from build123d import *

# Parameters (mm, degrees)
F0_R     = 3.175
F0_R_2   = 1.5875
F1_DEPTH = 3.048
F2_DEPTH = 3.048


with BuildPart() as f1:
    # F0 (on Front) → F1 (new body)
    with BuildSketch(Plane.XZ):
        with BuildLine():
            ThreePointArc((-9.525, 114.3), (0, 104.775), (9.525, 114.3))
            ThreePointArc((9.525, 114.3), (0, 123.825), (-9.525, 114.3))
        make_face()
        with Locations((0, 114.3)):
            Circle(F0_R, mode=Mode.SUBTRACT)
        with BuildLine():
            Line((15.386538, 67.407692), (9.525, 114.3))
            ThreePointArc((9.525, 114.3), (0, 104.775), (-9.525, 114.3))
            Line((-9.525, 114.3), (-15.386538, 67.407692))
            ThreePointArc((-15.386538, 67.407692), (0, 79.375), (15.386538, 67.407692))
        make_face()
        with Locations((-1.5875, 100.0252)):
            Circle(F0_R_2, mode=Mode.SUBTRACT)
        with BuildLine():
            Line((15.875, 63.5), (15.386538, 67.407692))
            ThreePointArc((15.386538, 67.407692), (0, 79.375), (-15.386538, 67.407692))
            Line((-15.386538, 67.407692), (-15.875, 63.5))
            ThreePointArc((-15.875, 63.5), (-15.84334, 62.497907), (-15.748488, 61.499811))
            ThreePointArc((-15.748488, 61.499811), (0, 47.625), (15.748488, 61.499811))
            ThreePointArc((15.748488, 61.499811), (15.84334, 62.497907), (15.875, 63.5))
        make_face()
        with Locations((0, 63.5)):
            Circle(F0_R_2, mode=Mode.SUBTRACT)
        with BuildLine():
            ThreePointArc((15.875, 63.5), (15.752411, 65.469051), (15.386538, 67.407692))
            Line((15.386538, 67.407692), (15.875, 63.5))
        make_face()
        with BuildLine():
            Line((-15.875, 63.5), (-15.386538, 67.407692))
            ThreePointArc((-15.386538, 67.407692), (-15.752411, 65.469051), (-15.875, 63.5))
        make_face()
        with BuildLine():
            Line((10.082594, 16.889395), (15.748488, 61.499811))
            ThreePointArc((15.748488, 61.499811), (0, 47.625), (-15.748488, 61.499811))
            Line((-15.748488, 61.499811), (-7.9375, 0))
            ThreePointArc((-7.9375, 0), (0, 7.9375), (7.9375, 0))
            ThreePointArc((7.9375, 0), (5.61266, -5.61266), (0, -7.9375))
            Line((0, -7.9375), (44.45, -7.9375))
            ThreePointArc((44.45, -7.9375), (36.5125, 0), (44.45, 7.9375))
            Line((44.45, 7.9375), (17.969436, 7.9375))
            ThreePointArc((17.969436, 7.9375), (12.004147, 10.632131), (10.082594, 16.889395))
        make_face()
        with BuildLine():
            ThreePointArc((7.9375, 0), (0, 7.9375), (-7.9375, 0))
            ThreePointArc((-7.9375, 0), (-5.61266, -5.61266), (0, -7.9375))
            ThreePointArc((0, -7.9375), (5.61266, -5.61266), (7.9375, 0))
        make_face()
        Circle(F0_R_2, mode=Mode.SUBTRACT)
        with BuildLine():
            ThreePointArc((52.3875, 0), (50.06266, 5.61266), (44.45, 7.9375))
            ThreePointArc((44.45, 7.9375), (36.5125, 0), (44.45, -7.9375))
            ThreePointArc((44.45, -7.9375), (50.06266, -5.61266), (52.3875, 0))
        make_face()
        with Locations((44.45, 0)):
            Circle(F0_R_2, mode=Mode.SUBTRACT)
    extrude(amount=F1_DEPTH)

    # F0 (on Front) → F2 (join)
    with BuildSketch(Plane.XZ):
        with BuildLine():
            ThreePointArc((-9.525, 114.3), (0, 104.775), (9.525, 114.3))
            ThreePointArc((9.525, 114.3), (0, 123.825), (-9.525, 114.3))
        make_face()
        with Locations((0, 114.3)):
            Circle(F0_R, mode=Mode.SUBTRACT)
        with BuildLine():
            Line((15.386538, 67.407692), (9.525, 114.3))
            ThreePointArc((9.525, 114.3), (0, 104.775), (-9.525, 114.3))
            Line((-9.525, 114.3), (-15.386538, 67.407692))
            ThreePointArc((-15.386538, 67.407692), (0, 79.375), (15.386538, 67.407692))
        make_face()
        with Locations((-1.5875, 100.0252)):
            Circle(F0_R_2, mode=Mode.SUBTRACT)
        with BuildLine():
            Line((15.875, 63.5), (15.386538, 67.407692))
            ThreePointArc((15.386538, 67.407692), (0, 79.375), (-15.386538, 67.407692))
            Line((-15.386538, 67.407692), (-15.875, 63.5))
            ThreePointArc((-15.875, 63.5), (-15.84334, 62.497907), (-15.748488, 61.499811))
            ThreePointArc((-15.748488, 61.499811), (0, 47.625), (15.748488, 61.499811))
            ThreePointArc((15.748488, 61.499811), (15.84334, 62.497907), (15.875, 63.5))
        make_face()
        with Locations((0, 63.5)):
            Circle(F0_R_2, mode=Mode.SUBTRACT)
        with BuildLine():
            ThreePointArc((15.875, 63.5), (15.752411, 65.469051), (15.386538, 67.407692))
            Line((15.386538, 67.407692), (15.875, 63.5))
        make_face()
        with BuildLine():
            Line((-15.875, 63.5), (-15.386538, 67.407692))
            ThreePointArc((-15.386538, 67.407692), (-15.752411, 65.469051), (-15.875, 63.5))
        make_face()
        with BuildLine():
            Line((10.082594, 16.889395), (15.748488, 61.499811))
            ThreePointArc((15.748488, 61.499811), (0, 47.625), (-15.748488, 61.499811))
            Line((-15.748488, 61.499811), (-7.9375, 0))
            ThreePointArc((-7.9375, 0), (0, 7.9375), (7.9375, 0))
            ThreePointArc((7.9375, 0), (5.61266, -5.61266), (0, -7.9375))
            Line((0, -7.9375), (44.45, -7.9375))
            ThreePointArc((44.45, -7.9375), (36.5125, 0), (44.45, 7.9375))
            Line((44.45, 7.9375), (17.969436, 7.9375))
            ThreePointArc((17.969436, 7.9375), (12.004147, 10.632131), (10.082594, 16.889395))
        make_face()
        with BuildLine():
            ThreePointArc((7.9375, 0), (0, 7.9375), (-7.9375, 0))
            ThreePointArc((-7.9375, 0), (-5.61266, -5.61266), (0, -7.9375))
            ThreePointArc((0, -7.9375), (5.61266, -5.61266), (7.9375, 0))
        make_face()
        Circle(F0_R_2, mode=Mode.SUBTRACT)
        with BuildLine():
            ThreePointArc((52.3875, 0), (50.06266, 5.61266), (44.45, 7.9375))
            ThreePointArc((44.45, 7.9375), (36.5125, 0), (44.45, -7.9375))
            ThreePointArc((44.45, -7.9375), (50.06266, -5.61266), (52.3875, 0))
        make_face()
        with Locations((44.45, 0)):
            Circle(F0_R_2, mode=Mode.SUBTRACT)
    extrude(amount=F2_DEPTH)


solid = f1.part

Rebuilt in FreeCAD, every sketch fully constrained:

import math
import FreeCAD as App
import Part
import Sketcher
Q = App.Units.Quantity

doc = App.newDocument("Part")
params = doc.addObject("Spreadsheet::Sheet", "Params")
for row, (alias, value) in enumerate([
    ("sketch1_diameter", "0.25 in"),
    ("sketch1_diameter2", "0.125 in"),
    ("sketch1_diameter3", "0.125 in"),
    ("sketch1_diameter4", "0.125 in"),
    ("sketch1_diameter5", "0.125 in"),
    ("pad1_length", "0.12 in"),
    ("sketch2_diameter", "0.25 in"),
    ("sketch2_diameter2", "0.125 in"),
    ("sketch2_diameter3", "0.125 in"),
    ("sketch2_diameter4", "0.125 in"),
    ("sketch2_diameter5", "0.125 in"),
    ("pad2_length", "0.12 in"),
], start=1):
    params.set(f"A{row}", alias)
    params.set(f"B{row}", "=" + value)
    params.setAlias(f"B{row}", alias)

body = doc.addObject("PartDesign::Body", "Body")

# Sketch on XZ plane
sketch1 = body.newObject("Sketcher::SketchObject", "Sketch")
sketch1.AttachmentSupport = (doc.getObject("XZ_Plane"), [""])
sketch1.MapMode = "FlatFace"
sketch1.addGeometry([
    Part.ArcOfCircle(Part.Circle(App.Vector(0, 114.3, 0), App.Vector(0, 0, 1), 9.525), math.radians(0), math.radians(180)),  # 0
    Part.LineSegment(App.Vector(-9.525, 114.3, 0), App.Vector(-15.386538, 67.407692, 0)),  # 1
    Part.ArcOfCircle(Part.Circle(App.Vector(0.00001, 63.499997, 0), App.Vector(0, 0, 1), 15.87501), math.radians(165.749965), math.radians(179.999988)),  # 2
    Part.ArcOfCircle(Part.Circle(App.Vector(0.000235, 63.500014, 0), App.Vector(0, 0, 1), 15.875235), math.radians(-179.999951), math.radians(-172.761772)),  # 3
    Part.LineSegment(App.Vector(-15.748488, 61.499811, 0), App.Vector(-7.9375, 0, 0)),  # 4
    Part.ArcOfCircle(Part.Circle(App.Vector(0, 0, 0), App.Vector(0, 0, 1), 7.9375), math.radians(-179.999998), math.radians(-90.000002)),  # 5
    Part.LineSegment(App.Vector(0, -7.9375, 0), App.Vector(44.45, -7.9375, 0)),  # 6
    Part.ArcOfCircle(Part.Circle(App.Vector(44.45, 0, 0), App.Vector(0, 0, 1), 7.9375), math.radians(-89.999998), math.radians(-0.000002)),  # 7
    Part.ArcOfCircle(Part.Circle(App.Vector(44.45, 0, 0), App.Vector(0, 0, 1), 7.9375), math.radians(0.000002), math.radians(89.999998)),  # 8
    Part.LineSegment(App.Vector(44.45, 7.9375, 0), App.Vector(17.969436, 7.9375, 0)),  # 9
    Part.ArcOfCircle(Part.Circle(App.Vector(17.969436, 15.887699, 0), App.Vector(0, 0, 1), 7.950199), math.radians(172.761705), math.radians(270.000001)),  # 10
    Part.LineSegment(App.Vector(10.082594, 16.889395, 0), App.Vector(15.748488, 61.499811, 0)),  # 11
    Part.ArcOfCircle(Part.Circle(App.Vector(-0.000235, 63.500014, 0), App.Vector(0, 0, 1), 15.875235), math.radians(-7.238228), math.radians(-0.000049)),  # 12
    Part.ArcOfCircle(Part.Circle(App.Vector(-0.00001, 63.499997, 0), App.Vector(0, 0, 1), 15.87501), math.radians(0.000012), math.radians(14.250035)),  # 13
    Part.LineSegment(App.Vector(15.386538, 67.407692, 0), App.Vector(9.525, 114.3, 0)),  # 14
    Part.Circle(App.Vector(0, 0, 0), App.Vector(0, 0, 1), 1.5875),  # 15
    Part.Circle(App.Vector(44.45, 0, 0), App.Vector(0, 0, 1), 1.5875),  # 16
    Part.Circle(App.Vector(0, 63.5, 0), App.Vector(0, 0, 1), 1.5875),  # 17
    Part.Circle(App.Vector(-1.5875, 100.0252, 0), App.Vector(0, 0, 1), 1.5875),  # 18
    Part.Circle(App.Vector(0, 114.3, 0), App.Vector(0, 0, 1), 3.175),  # 19
], False)
sketch1.addConstraint([
    Sketcher.Constraint("Coincident", 0, 2, 1, 1),
    Sketcher.Constraint("Coincident", 1, 2, 2, 1),
    Sketcher.Constraint("Coincident", 2, 2, 3, 1),
    Sketcher.Constraint("Coincident", 3, 2, 4, 1),
    Sketcher.Constraint("Coincident", 4, 2, 5, 1),
    Sketcher.Constraint("Coincident", 5, 2, 6, 1),
    Sketcher.Constraint("Coincident", 6, 2, 7, 1),
    Sketcher.Constraint("Coincident", 7, 2, 8, 1),
    Sketcher.Constraint("Coincident", 8, 2, 9, 1),
    Sketcher.Constraint("Coincident", 9, 2, 10, 2),
    Sketcher.Constraint("Coincident", 10, 1, 11, 1),
    Sketcher.Constraint("Coincident", 11, 2, 12, 1),
    Sketcher.Constraint("Coincident", 12, 2, 13, 1),
    Sketcher.Constraint("Coincident", 13, 2, 14, 1),
    Sketcher.Constraint("Coincident", 14, 2, 0, 1),
    Sketcher.Constraint("Horizontal", 6),
    Sketcher.Constraint("Horizontal", 9),
    Sketcher.Constraint("Coincident", 5, 3, -1, 1),
    Sketcher.Constraint("Coincident", 15, 3, -1, 1),
    Sketcher.Constraint("Coincident", 8, 3, 7, 3),
    Sketcher.Constraint("Coincident", 16, 3, 7, 3),
    Sketcher.Constraint("Coincident", 19, 3, 0, 3),
    Sketcher.Constraint("PointOnObject", 0, 3, -2),
    Sketcher.Constraint("PointOnObject", 7, 3, -1),
    Sketcher.Constraint("PointOnObject", 17, 3, -2),
    Sketcher.Constraint("PointOnObject", 4, 2, -1),
    Sketcher.Constraint("PointOnObject", 5, 2, -2),
    Sketcher.Constraint("PointOnObject", 7, 2, -1),
    Sketcher.Constraint("Diameter", 19, Q("0.25 in")),
    Sketcher.Constraint("Diameter", 15, Q("0.125 in")),
    Sketcher.Constraint("Diameter", 16, Q("0.125 in")),
    Sketcher.Constraint("Diameter", 17, Q("0.125 in")),
    Sketcher.Constraint("Diameter", 18, Q("0.125 in")),
    Sketcher.Constraint("Radius", 0, Q("0.375 in")),
    Sketcher.Constraint("Radius", 5, Q("0.3125 in")),
    Sketcher.Constraint("Radius", 10, Q("0.313 in")),
    Sketcher.Constraint("DistanceY", 2, 3, 0, 3, Q("2.0000001 in")),
    Sketcher.Constraint("DistanceY", 13, 3, 0, 3, Q("2.0000001 in")),
    Sketcher.Constraint("DistanceY", 17, 3, 0, 3, Q("2 in")),
    Sketcher.Constraint("DistanceY", 17, 3, 0, 2, Q("2 in")),
    Sketcher.Constraint("DistanceX", 6, 1, 6, 2, Q("1.75 in")),
    Sketcher.Constraint("DistanceY", -1, 1, 0, 3, Q("4.5 in")),
    Sketcher.Constraint("DistanceY", -1, 1, 2, 2, Q("2.5 in")),
    Sketcher.Constraint("DistanceY", -1, 1, 12, 2, Q("2.5 in")),
    Sketcher.Constraint("DistanceY", -1, 1, 14, 2, Q("4.5 in")),
    Sketcher.Constraint("DistanceX", -1, 1, 7, 3, Q("1.75 in")),
    Sketcher.Constraint("DistanceX", -1, 1, 8, 2, Q("1.75 in")),
    Sketcher.Constraint("DistanceX", 18, 3, -1, 1, Q("0.0625 in")),
    Sketcher.Constraint("DistanceY", -1, 1, 18, 3, Q("3.938 in")),
    Sketcher.Constraint("DistanceX", 2, 2, -1, 1, Q("0.625 in")),
    Sketcher.Constraint("DistanceX", -1, 1, 12, 2, Q("0.625 in")),
    Sketcher.Constraint("Radius", 2, Q("15.87501 mm")),
    Sketcher.Constraint("Radius", 13, Q("15.87501 mm")),
    Sketcher.Constraint("Radius", 3, Q("15.875235 mm")),
    Sketcher.Constraint("Radius", 12, Q("15.875235 mm")),
    Sketcher.Constraint("DistanceX", 3, 3, 10, 3, Q("17.9692 mm")),
    Sketcher.Constraint("DistanceX", 13, 3, 11, 2, Q("15.748498 mm")),
    Sketcher.Constraint("DistanceX", 9, 2, 9, 1, Q("26.480564 mm")),
    Sketcher.Constraint("DistanceY", -1, 1, 1, 2, Q("67.407692 mm")),
    Sketcher.Constraint("DistanceY", -1, 1, 3, 2, Q("61.499811 mm")),
    Sketcher.Constraint("DistanceY", -1, 1, 11, 2, Q("61.499811 mm")),
    Sketcher.Constraint("DistanceY", -1, 1, 13, 2, Q("67.407692 mm")),
    Sketcher.Constraint("DistanceY", 3, 3, 1, 2, Q("3.907678 mm")),
    Sketcher.Constraint("DistanceX", 10, 1, 10, 3, Q("7.886842 mm")),
])
sketch1.setExpression("Constraints[28]", "Params.sketch1_diameter")
sketch1.setExpression("Constraints[29]", "Params.sketch1_diameter2")
sketch1.setExpression("Constraints[30]", "Params.sketch1_diameter3")
sketch1.setExpression("Constraints[31]", "Params.sketch1_diameter4")
sketch1.setExpression("Constraints[32]", "Params.sketch1_diameter5")
pad1 = body.newObject("PartDesign::Pad", "Pad")
pad1.Profile = sketch1
pad1.setExpression("Length", "Params.pad1_length")

# Sketch on XZ plane
sketch2 = body.newObject("Sketcher::SketchObject", "Sketch001")
sketch2.AttachmentSupport = (doc.getObject("XZ_Plane"), [""])
sketch2.MapMode = "FlatFace"
sketch2.addGeometry([
    Part.ArcOfCircle(Part.Circle(App.Vector(0, 114.3, 0), App.Vector(0, 0, 1), 9.525), math.radians(0), math.radians(180)),  # 0
    Part.LineSegment(App.Vector(-9.525, 114.3, 0), App.Vector(-15.386538, 67.407692, 0)),  # 1
    Part.ArcOfCircle(Part.Circle(App.Vector(0.00001, 63.499997, 0), App.Vector(0, 0, 1), 15.87501), math.radians(165.749965), math.radians(179.999988)),  # 2
    Part.ArcOfCircle(Part.Circle(App.Vector(0.000235, 63.500014, 0), App.Vector(0, 0, 1), 15.875235), math.radians(-179.999951), math.radians(-172.761772)),  # 3
    Part.LineSegment(App.Vector(-15.748488, 61.499811, 0), App.Vector(-7.9375, 0, 0)),  # 4
    Part.ArcOfCircle(Part.Circle(App.Vector(0, 0, 0), App.Vector(0, 0, 1), 7.9375), math.radians(-179.999998), math.radians(-90.000002)),  # 5
    Part.LineSegment(App.Vector(0, -7.9375, 0), App.Vector(44.45, -7.9375, 0)),  # 6
    Part.ArcOfCircle(Part.Circle(App.Vector(44.45, 0, 0), App.Vector(0, 0, 1), 7.9375), math.radians(-89.999998), math.radians(-0.000002)),  # 7
    Part.ArcOfCircle(Part.Circle(App.Vector(44.45, 0, 0), App.Vector(0, 0, 1), 7.9375), math.radians(0.000002), math.radians(89.999998)),  # 8
    Part.LineSegment(App.Vector(44.45, 7.9375, 0), App.Vector(17.969436, 7.9375, 0)),  # 9
    Part.ArcOfCircle(Part.Circle(App.Vector(17.969436, 15.887699, 0), App.Vector(0, 0, 1), 7.950199), math.radians(172.761705), math.radians(270.000001)),  # 10
    Part.LineSegment(App.Vector(10.082594, 16.889395, 0), App.Vector(15.748488, 61.499811, 0)),  # 11
    Part.ArcOfCircle(Part.Circle(App.Vector(-0.000235, 63.500014, 0), App.Vector(0, 0, 1), 15.875235), math.radians(-7.238228), math.radians(-0.000049)),  # 12
    Part.ArcOfCircle(Part.Circle(App.Vector(-0.00001, 63.499997, 0), App.Vector(0, 0, 1), 15.87501), math.radians(0.000012), math.radians(14.250035)),  # 13
    Part.LineSegment(App.Vector(15.386538, 67.407692, 0), App.Vector(9.525, 114.3, 0)),  # 14
    Part.Circle(App.Vector(0, 0, 0), App.Vector(0, 0, 1), 1.5875),  # 15
    Part.Circle(App.Vector(44.45, 0, 0), App.Vector(0, 0, 1), 1.5875),  # 16
    Part.Circle(App.Vector(0, 63.5, 0), App.Vector(0, 0, 1), 1.5875),  # 17
    Part.Circle(App.Vector(-1.5875, 100.0252, 0), App.Vector(0, 0, 1), 1.5875),  # 18
    Part.Circle(App.Vector(0, 114.3, 0), App.Vector(0, 0, 1), 3.175),  # 19
], False)
sketch2.addConstraint([
    Sketcher.Constraint("Coincident", 0, 2, 1, 1),
    Sketcher.Constraint("Coincident", 1, 2, 2, 1),
    Sketcher.Constraint("Coincident", 2, 2, 3, 1),
    Sketcher.Constraint("Coincident", 3, 2, 4, 1),
    Sketcher.Constraint("Coincident", 4, 2, 5, 1),
    Sketcher.Constraint("Coincident", 5, 2, 6, 1),
    Sketcher.Constraint("Coincident", 6, 2, 7, 1),
    Sketcher.Constraint("Coincident", 7, 2, 8, 1),
    Sketcher.Constraint("Coincident", 8, 2, 9, 1),
    Sketcher.Constraint("Coincident", 9, 2, 10, 2),
    Sketcher.Constraint("Coincident", 10, 1, 11, 1),
    Sketcher.Constraint("Coincident", 11, 2, 12, 1),
    Sketcher.Constraint("Coincident", 12, 2, 13, 1),
    Sketcher.Constraint("Coincident", 13, 2, 14, 1),
    Sketcher.Constraint("Coincident", 14, 2, 0, 1),
    Sketcher.Constraint("Horizontal", 6),
    Sketcher.Constraint("Horizontal", 9),
    Sketcher.Constraint("Coincident", 5, 3, -1, 1),
    Sketcher.Constraint("Coincident", 15, 3, -1, 1),
    Sketcher.Constraint("Coincident", 8, 3, 7, 3),
    Sketcher.Constraint("Coincident", 16, 3, 7, 3),
    Sketcher.Constraint("Coincident", 19, 3, 0, 3),
    Sketcher.Constraint("PointOnObject", 0, 3, -2),
    Sketcher.Constraint("PointOnObject", 7, 3, -1),
    Sketcher.Constraint("PointOnObject", 17, 3, -2),
    Sketcher.Constraint("PointOnObject", 4, 2, -1),
    Sketcher.Constraint("PointOnObject", 5, 2, -2),
    Sketcher.Constraint("PointOnObject", 7, 2, -1),
    Sketcher.Constraint("Diameter", 19, Q("0.25 in")),
    Sketcher.Constraint("Diameter", 15, Q("0.125 in")),
    Sketcher.Constraint("Diameter", 16, Q("0.125 in")),
    Sketcher.Constraint("Diameter", 17, Q("0.125 in")),
    Sketcher.Constraint("Diameter", 18, Q("0.125 in")),
    Sketcher.Constraint("Radius", 0, Q("0.375 in")),
    Sketcher.Constraint("Radius", 5, Q("0.3125 in")),
    Sketcher.Constraint("Radius", 10, Q("0.313 in")),
    Sketcher.Constraint("DistanceY", 2, 3, 0, 3, Q("2.0000001 in")),
    Sketcher.Constraint("DistanceY", 13, 3, 0, 3, Q("2.0000001 in")),
    Sketcher.Constraint("DistanceY", 17, 3, 0, 3, Q("2 in")),
    Sketcher.Constraint("DistanceY", 17, 3, 0, 2, Q("2 in")),
    Sketcher.Constraint("DistanceX", 6, 1, 6, 2, Q("1.75 in")),
    Sketcher.Constraint("DistanceY", -1, 1, 0, 3, Q("4.5 in")),
    Sketcher.Constraint("DistanceY", -1, 1, 2, 2, Q("2.5 in")),
    Sketcher.Constraint("DistanceY", -1, 1, 12, 2, Q("2.5 in")),
    Sketcher.Constraint("DistanceY", -1, 1, 14, 2, Q("4.5 in")),
    Sketcher.Constraint("DistanceX", -1, 1, 7, 3, Q("1.75 in")),
    Sketcher.Constraint("DistanceX", -1, 1, 8, 2, Q("1.75 in")),
    Sketcher.Constraint("DistanceX", 18, 3, -1, 1, Q("0.0625 in")),
    Sketcher.Constraint("DistanceY", -1, 1, 18, 3, Q("3.938 in")),
    Sketcher.Constraint("DistanceX", 2, 2, -1, 1, Q("0.625 in")),
    Sketcher.Constraint("DistanceX", -1, 1, 12, 2, Q("0.625 in")),
    Sketcher.Constraint("Radius", 2, Q("15.87501 mm")),
    Sketcher.Constraint("Radius", 13, Q("15.87501 mm")),
    Sketcher.Constraint("Radius", 3, Q("15.875235 mm")),
    Sketcher.Constraint("Radius", 12, Q("15.875235 mm")),
    Sketcher.Constraint("DistanceX", 3, 3, 10, 3, Q("17.9692 mm")),
    Sketcher.Constraint("DistanceX", 13, 3, 11, 2, Q("15.748498 mm")),
    Sketcher.Constraint("DistanceX", 9, 2, 9, 1, Q("26.480564 mm")),
    Sketcher.Constraint("DistanceY", -1, 1, 1, 2, Q("67.407692 mm")),
    Sketcher.Constraint("DistanceY", -1, 1, 3, 2, Q("61.499811 mm")),
    Sketcher.Constraint("DistanceY", -1, 1, 11, 2, Q("61.499811 mm")),
    Sketcher.Constraint("DistanceY", -1, 1, 13, 2, Q("67.407692 mm")),
    Sketcher.Constraint("DistanceY", 3, 3, 1, 2, Q("3.907678 mm")),
    Sketcher.Constraint("DistanceX", 10, 1, 10, 3, Q("7.886842 mm")),
])
sketch2.setExpression("Constraints[28]", "Params.sketch2_diameter")
sketch2.setExpression("Constraints[29]", "Params.sketch2_diameter2")
sketch2.setExpression("Constraints[30]", "Params.sketch2_diameter3")
sketch2.setExpression("Constraints[31]", "Params.sketch2_diameter4")
sketch2.setExpression("Constraints[32]", "Params.sketch2_diameter5")
pad2 = body.newObject("PartDesign::Pad", "Pad001")
pad2.Profile = sketch2
pad2.setExpression("Length", "Params.pad2_length")

doc.recompute()
